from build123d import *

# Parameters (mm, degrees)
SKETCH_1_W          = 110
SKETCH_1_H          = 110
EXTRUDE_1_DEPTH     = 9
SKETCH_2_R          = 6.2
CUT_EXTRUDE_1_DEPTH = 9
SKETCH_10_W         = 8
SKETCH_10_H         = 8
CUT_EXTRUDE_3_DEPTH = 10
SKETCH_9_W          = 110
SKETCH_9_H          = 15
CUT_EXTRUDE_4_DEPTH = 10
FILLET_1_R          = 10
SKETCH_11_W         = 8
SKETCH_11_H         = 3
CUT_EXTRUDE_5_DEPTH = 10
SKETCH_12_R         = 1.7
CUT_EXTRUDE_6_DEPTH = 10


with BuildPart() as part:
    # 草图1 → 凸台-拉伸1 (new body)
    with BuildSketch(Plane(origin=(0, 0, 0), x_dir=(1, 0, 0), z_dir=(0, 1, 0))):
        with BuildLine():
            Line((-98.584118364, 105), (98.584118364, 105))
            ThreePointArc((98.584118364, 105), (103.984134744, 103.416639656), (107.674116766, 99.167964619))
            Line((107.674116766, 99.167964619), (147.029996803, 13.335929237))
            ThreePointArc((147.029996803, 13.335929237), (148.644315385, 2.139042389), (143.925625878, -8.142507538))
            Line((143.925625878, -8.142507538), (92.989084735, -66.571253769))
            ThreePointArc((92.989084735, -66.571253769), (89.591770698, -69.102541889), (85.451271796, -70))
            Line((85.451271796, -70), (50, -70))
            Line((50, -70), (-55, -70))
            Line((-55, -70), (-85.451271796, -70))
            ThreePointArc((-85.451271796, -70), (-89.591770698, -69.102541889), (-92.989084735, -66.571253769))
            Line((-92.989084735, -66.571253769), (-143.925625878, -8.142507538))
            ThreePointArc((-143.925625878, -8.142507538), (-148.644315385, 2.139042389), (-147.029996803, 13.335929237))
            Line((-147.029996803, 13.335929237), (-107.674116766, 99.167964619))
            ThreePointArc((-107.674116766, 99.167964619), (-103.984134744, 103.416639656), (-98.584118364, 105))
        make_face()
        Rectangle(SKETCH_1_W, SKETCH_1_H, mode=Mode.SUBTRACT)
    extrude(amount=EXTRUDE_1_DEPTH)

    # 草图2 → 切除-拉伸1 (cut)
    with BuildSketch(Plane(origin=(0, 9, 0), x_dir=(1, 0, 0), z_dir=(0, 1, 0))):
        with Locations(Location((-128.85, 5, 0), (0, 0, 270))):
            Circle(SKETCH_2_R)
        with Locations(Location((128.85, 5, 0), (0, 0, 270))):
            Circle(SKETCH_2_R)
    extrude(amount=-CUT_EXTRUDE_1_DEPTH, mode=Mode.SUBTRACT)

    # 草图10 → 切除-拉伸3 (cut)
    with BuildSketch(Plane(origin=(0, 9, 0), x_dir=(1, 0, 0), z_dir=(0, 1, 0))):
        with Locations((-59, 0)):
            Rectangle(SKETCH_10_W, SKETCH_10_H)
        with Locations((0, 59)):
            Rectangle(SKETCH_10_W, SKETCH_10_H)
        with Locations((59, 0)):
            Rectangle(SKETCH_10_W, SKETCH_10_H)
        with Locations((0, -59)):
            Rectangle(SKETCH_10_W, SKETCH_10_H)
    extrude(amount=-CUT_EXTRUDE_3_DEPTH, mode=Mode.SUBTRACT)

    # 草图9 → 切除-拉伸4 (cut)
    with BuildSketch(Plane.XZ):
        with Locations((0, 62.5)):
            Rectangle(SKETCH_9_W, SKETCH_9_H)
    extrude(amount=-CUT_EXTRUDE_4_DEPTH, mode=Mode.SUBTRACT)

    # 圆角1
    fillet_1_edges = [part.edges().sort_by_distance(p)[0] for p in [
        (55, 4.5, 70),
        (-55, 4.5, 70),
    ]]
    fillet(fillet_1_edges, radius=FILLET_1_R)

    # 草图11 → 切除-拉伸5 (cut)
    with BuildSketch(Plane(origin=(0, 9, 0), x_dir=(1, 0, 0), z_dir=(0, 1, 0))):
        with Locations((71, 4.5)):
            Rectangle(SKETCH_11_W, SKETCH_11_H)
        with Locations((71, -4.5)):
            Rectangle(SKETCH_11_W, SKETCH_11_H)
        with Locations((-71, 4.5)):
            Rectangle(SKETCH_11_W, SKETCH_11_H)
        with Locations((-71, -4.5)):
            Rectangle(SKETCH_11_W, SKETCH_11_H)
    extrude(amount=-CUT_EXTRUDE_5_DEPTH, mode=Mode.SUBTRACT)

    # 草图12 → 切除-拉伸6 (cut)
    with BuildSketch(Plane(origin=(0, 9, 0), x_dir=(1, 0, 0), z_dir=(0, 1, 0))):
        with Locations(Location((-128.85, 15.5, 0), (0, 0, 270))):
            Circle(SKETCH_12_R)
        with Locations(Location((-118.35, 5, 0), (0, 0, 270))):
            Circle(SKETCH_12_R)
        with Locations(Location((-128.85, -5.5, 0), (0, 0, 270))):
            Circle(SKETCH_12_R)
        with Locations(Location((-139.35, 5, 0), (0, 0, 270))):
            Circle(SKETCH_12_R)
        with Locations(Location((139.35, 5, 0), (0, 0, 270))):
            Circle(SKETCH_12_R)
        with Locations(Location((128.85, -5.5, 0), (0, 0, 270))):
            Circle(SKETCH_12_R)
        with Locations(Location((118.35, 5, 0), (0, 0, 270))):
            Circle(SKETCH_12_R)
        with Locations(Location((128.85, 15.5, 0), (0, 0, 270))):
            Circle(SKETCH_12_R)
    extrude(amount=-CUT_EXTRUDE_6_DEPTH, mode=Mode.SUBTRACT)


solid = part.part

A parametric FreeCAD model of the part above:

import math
import FreeCAD as App
import Part
import Sketcher
from FreeCAD import Vector


def edges_at(feature, points):
    """Names of the edges that pass closest to the given points."""
    edges = feature.Shape.Edges
    near = lambda p: min(range(len(edges)), key=lambda i: edges[i].distToShape(Part.Vertex(*p))[0])
    return sorted({f"Edge{near(p) + 1}" for p in points})


def add_polygon(sketch, points):
    """Adds a closed chain of lines whose ends are joined by coincident constraints."""
    first, n = sketch.GeometryCount, len(points)
    for a, b in zip(points, points[1:] + points[:1]):
        sketch.addGeometry(Part.LineSegment(App.Vector(*a, 0), App.Vector(*b, 0)), False)
    for i in range(n):
        sketch.addConstraint(Sketcher.Constraint("Coincident", first + i, 2, first + (i + 1) % n, 1))

doc = App.newDocument("Part")
body = doc.addObject("PartDesign::Body", "Body")

# Sketch on XZ plane
sketch1 = doc.addObject("Sketcher::SketchObject", "Sketch")
body.addObject(sketch1)
sketch1.AttachmentSupport = (doc.XZ_Plane, [""])
sketch1.MapMode = "FlatFace"
sketch1.addGeometry(Part.LineSegment(Vector(98.584118, -105, 0), Vector(-98.584118, -105, 0)), False)  # 0
sketch1.addGeometry(Part.ArcOfCircle(Part.Circle(Vector(-98.584118, -95, 0), Vector(0, 0, 1), 10), math.radians(-155.367501), math.radians(-90)), False)  # 1
sketch1.addGeometry(Part.LineSegment(Vector(-107.674117, -99.167965, 0), Vector(-147.029997, -13.335929, 0)), False)  # 2
sketch1.addGeometry(Part.ArcOfCircle(Part.Circle(Vector(-128.85, -5, 0), Vector(0, 0, 1), 20), math.radians(138.918996), math.radians(204.632499)), False)  # 3
sketch1.addGeometry(Part.LineSegment(Vector(-143.925626, 8.142508, 0), Vector(-92.989085, 66.571254, 0)), False)  # 4
sketch1.addGeometry(Part.ArcOfCircle(Part.Circle(Vector(-85.451272, 60, 0), Vector(0, 0, 1), 10), math.radians(90), math.radians(138.918996)), False)  # 5
sketch1.addGeometry(Part.LineSegment(Vector(-85.451272, 70, 0), Vector(85.451272, 70, 0)), False)  # 6
sketch1.addGeometry(Part.ArcOfCircle(Part.Circle(Vector(85.451272, 60, 0), Vector(0, 0, 1), 10), math.radians(41.081004), math.radians(90)), False)  # 7
sketch1.addGeometry(Part.LineSegment(Vector(92.989085, 66.571254, 0), Vector(143.925626, 8.142508, 0)), False)  # 8
sketch1.addGeometry(Part.ArcOfCircle(Part.Circle(Vector(128.85, -5, 0), Vector(0, 0, 1), 20), math.radians(-24.632499), math.radians(41.081004)), False)  # 9
sketch1.addGeometry(Part.LineSegment(Vector(147.029997, -13.335929, 0), Vector(107.674117, -99.167965, 0)), False)  # 10
sketch1.addGeometry(Part.ArcOfCircle(Part.Circle(Vector(98.584118, -95, 0), Vector(0, 0, 1), 10), math.radians(-90), math.radians(-24.632499)), False)  # 11
add_polygon(sketch1, [(-55, 55), (-55, -55), (55, -55), (55, 55)])  # lines 12-15
sketch1.addConstraint([
    Sketcher.Constraint("Tangent", 0, 2, 1, 2),
    Sketcher.Constraint("Tangent", 1, 1, 2, 1),
    Sketcher.Constraint("Tangent", 2, 2, 3, 2),
    Sketcher.Constraint("Tangent", 3, 1, 4, 1),
    Sketcher.Constraint("Tangent", 4, 2, 5, 2),
    Sketcher.Constraint("Tangent", 5, 1, 6, 1),
    Sketcher.Constraint("Tangent", 6, 2, 7, 2),
    Sketcher.Constraint("Tangent", 7, 1, 8, 1),
    Sketcher.Constraint("Tangent", 8, 2, 9, 2),
    Sketcher.Constraint("Tangent", 9, 1, 10, 1),
    Sketcher.Constraint("Tangent", 10, 2, 11, 2),
    Sketcher.Constraint("Tangent", 11, 1, 0, 1),
    Sketcher.Constraint("Horizontal", 0),
    Sketcher.Constraint("Horizontal", 6),
    Sketcher.Constraint("Vertical", 12),
    Sketcher.Constraint("Horizontal", 13),
    Sketcher.Constraint("Vertical", 14),
    Sketcher.Constraint("Horizontal", 15),
    Sketcher.Constraint("Equal", 1, 5),
    Sketcher.Constraint("Equal", 5, 7),
    Sketcher.Constraint("Equal", 3, 9),
    Sketcher.Constraint("Equal", 7, 11),
    Sketcher.Constraint("Symmetric", 12, 2, 14, 2, -1, 1),
    Sketcher.Constraint("Symmetric", 3, 3, 9, 3, -2),
    Sketcher.Constraint("Horizontal", 4, 2, 7, 1),
    Sketcher.Constraint("Horizontal", 2, 2, 9, 1),
    Sketcher.Constraint("Equal", 15, 12),
    Sketcher.Constraint("Radius", 1, 10.0),
    Sketcher.Constraint("Radius", 3, 20.0),
    Sketcher.Constraint("DistanceX", 13, 1, 13, 2, 110.0),
    Sketcher.Constraint("DistanceY", 1, 3, -1, 1, 95.0),
    Sketcher.Constraint("DistanceY", 3, 3, -1, 1, 5.0),
    Sketcher.Constraint("DistanceY", -1, 1, 5, 3, 60.0),
    Sketcher.Constraint("DistanceX", 3, 3, 9, 3, 257.7),
    Sketcher.Constraint("DistanceX", 1, 1, 1, 3, 9.089998),
    Sketcher.Constraint("Distance", 4, 77.51419),
])
pad1 = doc.addObject("PartDesign::Pad", "Pad")
body.addObject(pad1)
pad1.Profile = sketch1
pad1.Length = 9
pad1.Reversed = True

# Sketch on XZ plane
sketch2 = doc.addObject("Sketcher::SketchObject", "Sketch001")
body.addObject(sketch2)
sketch2.AttachmentSupport = (doc.XZ_Plane, [""])
sketch2.MapMode = "FlatFace"
sketch2.AttachmentOffset = App.Placement(Vector(0, 0, -9), App.Rotation())
sketch2.addGeometry([
    Part.Circle(Vector(-128.85, -5, 0), Vector(0, 0, 1), 6.2),
    Part.Circle(Vector(128.85, -5, 0), Vector(0, 0, 1), 6.2),
], False)
sketch2.addConstraint([
    Sketcher.Constraint("Equal", 0, 1),
    Sketcher.Constraint("Symmetric", 0, 3, 1, 3, -2),
    Sketcher.Constraint("Diameter", 0, 12.4),
    Sketcher.Constraint("DistanceY", 0, 3, -1, 1, 5.0),
    Sketcher.Constraint("DistanceX", 0, 3, 1, 3, 257.7),
])
pocket1 = doc.addObject("PartDesign::Pocket", "Pocket")
body.addObject(pocket1)
pocket1.Profile = sketch2
pocket1.Length = 9
pocket1.Reversed = True

# Sketch on XZ plane
sketch3 = doc.addObject("Sketcher::SketchObject", "Sketch002")
body.addObject(sketch3)
sketch3.AttachmentSupport = (doc.XZ_Plane, [""])
sketch3.MapMode = "FlatFace"
sketch3.AttachmentOffset = App.Placement(Vector(0, 0, -9), App.Rotation())
add_polygon(sketch3, [(-63, -4), (-63, 4), (-55, 4), (-55, -4)])  # lines 0-3
add_polygon(sketch3, [(-4, -63), (-4, -55), (4, -55), (4, -63)])  # lines 4-7
add_polygon(sketch3, [(55, -4), (55, 4), (63, 4), (63, -4)])  # lines 8-11
add_polygon(sketch3, [(-4, 55), (-4, 63), (4, 63), (4, 55)])  # lines 12-15
sketch3.addConstraint([
    Sketcher.Constraint("Vertical", 0),
    Sketcher.Constraint("Horizontal", 1),
    Sketcher.Constraint("Vertical", 2),
    Sketcher.Constraint("Horizontal", 3),
    Sketcher.Constraint("Vertical", 4),
    Sketcher.Constraint("Horizontal", 5),
    Sketcher.Constraint("Vertical", 6),
    Sketcher.Constraint("Horizontal", 7),
    Sketcher.Constraint("Vertical", 8),
    Sketcher.Constraint("Horizontal", 9),
    Sketcher.Constraint("Vertical", 10),
    Sketcher.Constraint("Horizontal", 11),
    Sketcher.Constraint("Vertical", 12),
    Sketcher.Constraint("Horizontal", 13),
    Sketcher.Constraint("Vertical", 14),
    Sketcher.Constraint("Horizontal", 15),
    Sketcher.Constraint("Symmetric", 2, 2, 8, 2, -1, 1),
    Sketcher.Constraint("Symmetric", 0, 2, 10, 2, -1, 1),
    Sketcher.Constraint("Symmetric", 6, 2, 12, 2, -1, 1),
    Sketcher.Constraint("Symmetric", 4, 2, 14, 2, -1, 1),
    Sketcher.Constraint("Horizontal", 1, 2, 8, 2),
    Sketcher.Constraint("Vertical", 7, 2, 12, 2),
    Sketcher.Constraint("Equal", 3, 5),
    Sketcher.Constraint("Equal", 15, 0),
    Sketcher.Constraint("Equal", 2, 4),
    Sketcher.Constraint("DistanceX", 1, 1, 1, 2, 8.0),
    Sketcher.Constraint("DistanceX", 0, 2, -1, 1, 63.0),
    Sketcher.Constraint("DistanceY", 4, 2, -1, 1, 55.0),
])
pocket2 = doc.addObject("PartDesign::Pocket", "Pocket001")
body.addObject(pocket2)
pocket2.Profile = sketch3
pocket2.Length = 10
pocket2.Reversed = True

# Sketch on XZ plane
sketch4 = doc.addObject("Sketcher::SketchObject", "Sketch003")
body.addObject(sketch4)
sketch4.AttachmentSupport = (doc.XZ_Plane, [""])
sketch4.MapMode = "FlatFace"
add_polygon(sketch4, [(-55, 70), (-55, 55), (55, 55), (55, 70)])  # lines 0-3
sketch4.addConstraint([
    Sketcher.Constraint("Vertical", 0),
    Sketcher.Constraint("Horizontal", 1),
    Sketcher.Constraint("Vertical", 2),
    Sketcher.Constraint("Horizontal", 3),
    Sketcher.Constraint("DistanceX", 1, 1, 1, 2, 110.0),
    Sketcher.Constraint("DistanceY", 0, 2, 0, 1, 15.0),
    Sketcher.Constraint("DistanceX", 0, 2, -1, 1, 55.0),
    Sketcher.Constraint("DistanceY", -1, 1, 0, 2, 55.0),
])
pocket3 = doc.addObject("PartDesign::Pocket", "Pocket002")
body.addObject(pocket3)
pocket3.Profile = sketch4
pocket3.Length = 10
doc.recompute()

fillet = doc.addObject("PartDesign::Fillet", "Fillet")
body.addObject(fillet)
fillet.Base = (pocket3, edges_at(pocket3, [(55, 4.5, 70), (-55, 4.5, 70)]))
fillet.Radius = 10

# Sketch on XZ plane
sketch5 = doc.addObject("Sketcher::SketchObject", "Sketch004")
body.addObject(sketch5)
sketch5.AttachmentSupport = (doc.XZ_Plane, [""])
sketch5.MapMode = "FlatFace"
sketch5.AttachmentOffset = App.Placement(Vector(0, 0, -9), App.Rotation())
add_polygon(sketch5, [(67, -6), (67, -3), (75, -3), (75, -6)])  # lines 0-3
add_polygon(sketch5, [(67, 3), (67, 6), (75, 6), (75, 3)])  # lines 4-7
add_polygon(sketch5, [(-75, -6), (-75, -3), (-67, -3), (-67, -6)])  # lines 8-11
add_polygon(sketch5, [(-75, 3), (-75, 6), (-67, 6), (-67, 3)])  # lines 12-15
sketch5.addConstraint([
    Sketcher.Constraint("Vertical", 0),
    Sketcher.Constraint("Horizontal", 1),
    Sketcher.Constraint("Vertical", 2),
    Sketcher.Constraint("Horizontal", 3),
    Sketcher.Constraint("Vertical", 4),
    Sketcher.Constraint("Horizontal", 5),
    Sketcher.Constraint("Vertical", 6),
    Sketcher.Constraint("Horizontal", 7),
    Sketcher.Constraint("Vertical", 8),
    Sketcher.Constraint("Horizontal", 9),
    Sketcher.Constraint("Vertical", 10),
    Sketcher.Constraint("Horizontal", 11),
    Sketcher.Constraint("Vertical", 12),
    Sketcher.Constraint("Horizontal", 13),
    Sketcher.Constraint("Vertical", 14),
    Sketcher.Constraint("Horizontal", 15),
    Sketcher.Constraint("Symmetric", 6, 2, 8, 2, -1, 1),
    Sketcher.Constraint("Symmetric", 4, 2, 10, 2, -1, 1),
    Sketcher.Constraint("Symmetric", 2, 2, 12, 2, -1, 1),
    Sketcher.Constraint("Symmetric", 0, 2, 14, 2, -1, 1),
    Sketcher.Constraint("Symmetric", 1, 2, 8, 2, -2),
    Sketcher.Constraint("Symmetric", 3, 2, 10, 2, -2),
    Sketcher.Constraint("DistanceX", 1, 1, 1, 2, 8.0),
    Sketcher.Constraint("DistanceY", 0, 1, 0, 2, 3.0),
    Sketcher.Constraint("DistanceX", -1, 1, 0, 2, 67.0),
    Sketcher.Constraint("DistanceY", 0, 2, -1, 1, 3.0),
])
pocket4 = doc.addObject("PartDesign::Pocket", "Pocket003")
body.addObject(pocket4)
pocket4.Profile = sketch5
pocket4.Length = 10
pocket4.Reversed = True

# Sketch on XZ plane
sketch6 = doc.addObject("Sketcher::SketchObject", "Sketch005")
body.addObject(sketch6)
sketch6.AttachmentSupport = (doc.XZ_Plane, [""])
sketch6.MapMode = "FlatFace"
sketch6.AttachmentOffset = App.Placement(Vector(0, 0, -9), App.Rotation())
sketch6.addGeometry([
    Part.Circle(Vector(-128.85, -15.5, 0), Vector(0, 0, 1), 1.7),  # 0
    Part.Circle(Vector(-118.35, -5, 0), Vector(0, 0, 1), 1.7),  # 1
    Part.Circle(Vector(-128.85, 5.5, 0), Vector(0, 0, 1), 1.7),  # 2
    Part.Circle(Vector(-139.35, -5, 0), Vector(0, 0, 1), 1.7),  # 3
    Part.Circle(Vector(139.35, -5, 0), Vector(0, 0, 1), 1.7),  # 4
    Part.Circle(Vector(128.85, 5.5, 0), Vector(0, 0, 1), 1.7),  # 5
    Part.Circle(Vector(118.35, -5, 0), Vector(0, 0, 1), 1.7),  # 6
    Part.Circle(Vector(128.85, -15.5, 0), Vector(0, 0, 1), 1.7),  # 7
], False)
sketch6.addConstraint([
    Sketcher.Constraint("Equal", 0, 1),
    Sketcher.Constraint("Equal", 1, 2),
    Sketcher.Constraint("Equal", 2, 3),
    Sketcher.Constraint("Equal", 3, 4),
    Sketcher.Constraint("Equal", 4, 5),
    Sketcher.Constraint("Equal", 5, 6),
    Sketcher.Constraint("Equal", 6, 7),
    Sketcher.Constraint("Symmetric", 3, 3, 4, 3, -2),
    Sketcher.Constraint("Symmetric", 2, 3, 5, 3, -2),
    Sketcher.Constraint("Symmetric", 1, 3, 6, 3, -2),
    Sketcher.Constraint("Symmetric", 0, 3, 7, 3, -2),
    Sketcher.Constraint("Horizontal", 1, 3, 3, 3),
    Sketcher.Constraint("Vertical", 0, 3, 2, 3),
    Sketcher.Constraint("Diameter", 0, 3.4),
    Sketcher.Constraint("DistanceY", 1, 3, -1, 1, 5.0),
    Sketcher.Constraint("DistanceY", 0, 3, 2, 3, 21.0),
    Sketcher.Constraint("DistanceX", 3, 3, 1, 3, 21.0),
    Sketcher.Constraint("DistanceY", 0, 3, -1, 1, 15.5),
    Sketcher.Constraint("DistanceX", 0, 3, 1, 3, 10.5),
    Sketcher.Constraint("DistanceX", 1, 3, 4, 3, 257.7),
])
pocket5 = doc.addObject("PartDesign::Pocket", "Pocket004")
body.addObject(pocket5)
pocket5.Profile = sketch6
pocket5.Length = 10
pocket5.Reversed = True

doc.recompute()
